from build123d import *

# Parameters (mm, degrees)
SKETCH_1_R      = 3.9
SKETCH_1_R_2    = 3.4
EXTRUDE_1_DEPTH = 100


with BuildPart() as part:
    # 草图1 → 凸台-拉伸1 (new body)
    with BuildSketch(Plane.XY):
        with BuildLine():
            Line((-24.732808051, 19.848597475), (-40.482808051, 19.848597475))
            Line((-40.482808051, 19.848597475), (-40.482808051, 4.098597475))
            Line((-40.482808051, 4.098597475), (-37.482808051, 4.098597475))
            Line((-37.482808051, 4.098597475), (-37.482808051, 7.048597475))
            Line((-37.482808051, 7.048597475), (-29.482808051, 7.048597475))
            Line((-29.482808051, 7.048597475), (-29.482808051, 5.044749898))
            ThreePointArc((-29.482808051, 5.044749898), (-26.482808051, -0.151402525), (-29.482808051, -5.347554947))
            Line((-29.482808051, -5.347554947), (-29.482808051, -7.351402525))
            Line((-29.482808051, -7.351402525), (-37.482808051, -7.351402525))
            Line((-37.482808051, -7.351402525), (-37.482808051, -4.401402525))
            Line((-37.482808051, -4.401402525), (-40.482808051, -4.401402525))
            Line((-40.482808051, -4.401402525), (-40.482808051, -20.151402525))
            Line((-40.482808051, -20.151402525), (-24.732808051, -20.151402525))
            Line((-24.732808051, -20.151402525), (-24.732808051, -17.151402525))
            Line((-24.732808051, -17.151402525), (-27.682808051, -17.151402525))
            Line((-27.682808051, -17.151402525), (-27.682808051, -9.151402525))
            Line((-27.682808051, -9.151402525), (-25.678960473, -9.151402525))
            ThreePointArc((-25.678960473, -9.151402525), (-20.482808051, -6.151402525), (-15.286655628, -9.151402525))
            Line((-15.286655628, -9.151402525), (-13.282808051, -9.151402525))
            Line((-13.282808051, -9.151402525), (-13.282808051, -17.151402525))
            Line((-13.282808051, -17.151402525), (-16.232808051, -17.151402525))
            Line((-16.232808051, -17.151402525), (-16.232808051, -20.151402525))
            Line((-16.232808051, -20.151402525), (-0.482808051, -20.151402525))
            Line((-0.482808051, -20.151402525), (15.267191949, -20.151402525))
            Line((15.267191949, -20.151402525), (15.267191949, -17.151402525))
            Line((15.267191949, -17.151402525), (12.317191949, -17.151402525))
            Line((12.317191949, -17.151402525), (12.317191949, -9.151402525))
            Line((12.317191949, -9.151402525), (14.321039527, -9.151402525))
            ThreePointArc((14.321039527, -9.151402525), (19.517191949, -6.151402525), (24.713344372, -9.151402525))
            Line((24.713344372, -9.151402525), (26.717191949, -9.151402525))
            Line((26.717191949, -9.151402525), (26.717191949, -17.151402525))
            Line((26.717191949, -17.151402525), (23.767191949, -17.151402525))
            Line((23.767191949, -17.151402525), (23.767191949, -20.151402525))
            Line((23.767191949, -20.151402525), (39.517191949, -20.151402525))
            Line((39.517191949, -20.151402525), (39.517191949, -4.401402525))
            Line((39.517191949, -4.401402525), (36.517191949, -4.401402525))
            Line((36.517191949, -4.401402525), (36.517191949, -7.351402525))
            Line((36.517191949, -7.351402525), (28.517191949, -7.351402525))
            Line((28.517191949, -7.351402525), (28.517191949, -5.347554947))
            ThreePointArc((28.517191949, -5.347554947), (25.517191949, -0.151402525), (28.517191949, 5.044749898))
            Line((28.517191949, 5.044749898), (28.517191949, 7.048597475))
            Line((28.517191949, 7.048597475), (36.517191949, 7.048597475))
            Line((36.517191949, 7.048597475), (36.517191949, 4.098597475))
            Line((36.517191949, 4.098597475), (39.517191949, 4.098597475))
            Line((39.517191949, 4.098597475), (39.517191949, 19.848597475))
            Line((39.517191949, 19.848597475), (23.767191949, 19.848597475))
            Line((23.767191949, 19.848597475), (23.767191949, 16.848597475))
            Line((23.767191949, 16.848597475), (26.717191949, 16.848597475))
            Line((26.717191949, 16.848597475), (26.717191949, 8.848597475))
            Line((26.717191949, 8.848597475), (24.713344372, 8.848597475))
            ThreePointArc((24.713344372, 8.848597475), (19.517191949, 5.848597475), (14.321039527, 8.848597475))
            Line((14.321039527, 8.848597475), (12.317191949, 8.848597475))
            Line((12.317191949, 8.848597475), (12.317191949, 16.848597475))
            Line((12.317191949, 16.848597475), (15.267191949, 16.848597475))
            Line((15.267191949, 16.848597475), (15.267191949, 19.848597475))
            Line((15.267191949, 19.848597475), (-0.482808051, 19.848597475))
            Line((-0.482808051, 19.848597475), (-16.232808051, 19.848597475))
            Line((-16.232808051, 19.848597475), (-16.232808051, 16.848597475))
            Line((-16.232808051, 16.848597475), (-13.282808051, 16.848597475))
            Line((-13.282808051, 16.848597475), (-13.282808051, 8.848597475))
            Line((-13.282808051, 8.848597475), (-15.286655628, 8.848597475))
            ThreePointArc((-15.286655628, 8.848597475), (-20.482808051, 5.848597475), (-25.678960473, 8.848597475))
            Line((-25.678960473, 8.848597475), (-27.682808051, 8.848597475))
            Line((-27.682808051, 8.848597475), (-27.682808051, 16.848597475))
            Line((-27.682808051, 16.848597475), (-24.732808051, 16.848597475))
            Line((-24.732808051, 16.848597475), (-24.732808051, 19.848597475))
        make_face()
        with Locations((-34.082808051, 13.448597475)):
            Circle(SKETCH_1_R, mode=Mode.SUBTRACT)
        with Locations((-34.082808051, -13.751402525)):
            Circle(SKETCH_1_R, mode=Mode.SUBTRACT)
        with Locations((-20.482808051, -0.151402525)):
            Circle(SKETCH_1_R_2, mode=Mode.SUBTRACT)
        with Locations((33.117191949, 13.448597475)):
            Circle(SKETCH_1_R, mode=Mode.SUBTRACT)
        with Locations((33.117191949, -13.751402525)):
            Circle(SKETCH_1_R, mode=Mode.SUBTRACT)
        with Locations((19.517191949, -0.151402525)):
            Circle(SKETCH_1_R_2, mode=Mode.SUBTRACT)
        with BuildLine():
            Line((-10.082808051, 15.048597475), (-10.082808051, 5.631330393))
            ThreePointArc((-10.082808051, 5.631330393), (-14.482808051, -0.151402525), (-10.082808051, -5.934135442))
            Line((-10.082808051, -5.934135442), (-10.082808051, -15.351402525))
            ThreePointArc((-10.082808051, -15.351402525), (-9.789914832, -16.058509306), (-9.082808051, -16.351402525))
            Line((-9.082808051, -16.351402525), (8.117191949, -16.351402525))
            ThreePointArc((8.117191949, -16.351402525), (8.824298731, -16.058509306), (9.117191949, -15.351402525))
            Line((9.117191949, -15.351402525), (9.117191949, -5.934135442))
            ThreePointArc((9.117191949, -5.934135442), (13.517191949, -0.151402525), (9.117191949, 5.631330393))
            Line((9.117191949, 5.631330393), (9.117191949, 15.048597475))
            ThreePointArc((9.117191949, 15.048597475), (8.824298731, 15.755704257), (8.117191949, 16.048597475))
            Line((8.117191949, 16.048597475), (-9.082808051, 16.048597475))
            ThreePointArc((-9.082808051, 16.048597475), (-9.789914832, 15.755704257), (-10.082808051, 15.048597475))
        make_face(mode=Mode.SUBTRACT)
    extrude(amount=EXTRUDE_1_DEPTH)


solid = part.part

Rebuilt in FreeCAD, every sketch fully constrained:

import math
import FreeCAD as App
import Part
import Sketcher

doc = App.newDocument("Part")
body = doc.addObject("PartDesign::Body", "Body")

sketch1 = body.newObject("Sketcher::SketchObject", "Sketch")
sketch1.AttachmentSupport = (doc.getObject("XY_Plane"), [""])
sketch1.MapMode = "FlatFace"
sketch1.addGeometry([
    Part.LineSegment(App.Vector(-24.7, 19.8, 0), App.Vector(-40.5, 19.8, 0)),
    Part.LineSegment(App.Vector(-40.5, 19.8, 0), App.Vector(-40.5, 4.1, 0)),
    Part.LineSegment(App.Vector(-40.5, 4.1, 0), App.Vector(-37.5, 4.1, 0)),
    Part.LineSegment(App.Vector(-37.5, 4.1, 0), App.Vector(-37.5, 7, 0)),
    Part.LineSegment(App.Vector(-37.5, 7, 0), App.Vector(-29.5, 7, 0)),
    Part.LineSegment(App.Vector(-29.5, 7, 0), App.Vector(-29.5, 5, 0)),
    Part.ArcOfCircle(Part.Circle(App.Vector(-32.5, -0.2, 0), App.Vector(0, 0, 1), 6), math.radians(-60), math.radians(60)),
    Part.LineSegment(App.Vector(-29.5, -5.3, 0), App.Vector(-29.5, -7.4, 0)),
    Part.LineSegment(App.Vector(-29.5, -7.4, 0), App.Vector(-37.5, -7.4, 0)),
    Part.LineSegment(App.Vector(-37.5, -7.4, 0), App.Vector(-37.5, -4.4, 0)),
    Part.LineSegment(App.Vector(-37.5, -4.4, 0), App.Vector(-40.5, -4.4, 0)),
    Part.LineSegment(App.Vector(-40.5, -4.4, 0), App.Vector(-40.5, -20.2, 0)),
    Part.LineSegment(App.Vector(-40.5, -20.2, 0), App.Vector(-24.7, -20.2, 0)),
    Part.LineSegment(App.Vector(-24.7, -20.2, 0), App.Vector(-24.7, -17.2, 0)),
    Part.LineSegment(App.Vector(-24.7, -17.2, 0), App.Vector(-27.7, -17.2, 0)),
    Part.LineSegment(App.Vector(-27.7, -17.2, 0), App.Vector(-27.7, -9.2, 0)),
    Part.LineSegment(App.Vector(-27.7, -9.2, 0), App.Vector(-25.7, -9.2, 0)),
    Part.ArcOfCircle(Part.Circle(App.Vector(-20.5, -12.2, 0), App.Vector(0, 0, 1), 6), math.radians(30), math.radians(150)),
    Part.LineSegment(App.Vector(-15.3, -9.2, 0), App.Vector(-13.3, -9.2, 0)),
    Part.LineSegment(App.Vector(-13.3, -9.2, 0), App.Vector(-13.3, -17.2, 0)),
    Part.LineSegment(App.Vector(-13.3, -17.2, 0), App.Vector(-16.2, -17.2, 0)),
    Part.LineSegment(App.Vector(-16.2, -17.2, 0), App.Vector(-16.2, -20.2, 0)),
    Part.LineSegment(App.Vector(-16.2, -20.2, 0), App.Vector(15.3, -20.2, 0)),
    Part.LineSegment(App.Vector(15.3, -20.2, 0), App.Vector(15.3, -17.2, 0)),
    Part.LineSegment(App.Vector(15.3, -17.2, 0), App.Vector(12.3, -17.2, 0)),
    Part.LineSegment(App.Vector(12.3, -17.2, 0), App.Vector(12.3, -9.2, 0)),
    Part.LineSegment(App.Vector(12.3, -9.2, 0), App.Vector(14.3, -9.2, 0)),
    Part.ArcOfCircle(Part.Circle(App.Vector(19.5, -12.2, 0), App.Vector(0, 0, 1), 6), math.radians(30), math.radians(150)),
    Part.LineSegment(App.Vector(24.7, -9.2, 0), App.Vector(26.7, -9.2, 0)),
    Part.LineSegment(App.Vector(26.7, -9.2, 0), App.Vector(26.7, -17.2, 0)),
    Part.LineSegment(App.Vector(26.7, -17.2, 0), App.Vector(23.8, -17.2, 0)),
    Part.LineSegment(App.Vector(23.8, -17.2, 0), App.Vector(23.8, -20.2, 0)),
    Part.LineSegment(App.Vector(23.8, -20.2, 0), App.Vector(39.5, -20.2, 0)),
    Part.LineSegment(App.Vector(39.5, -20.2, 0), App.Vector(39.5, -4.4, 0)),
    Part.LineSegment(App.Vector(39.5, -4.4, 0), App.Vector(36.5, -4.4, 0)),
    Part.LineSegment(App.Vector(36.5, -4.4, 0), App.Vector(36.5, -7.4, 0)),
    Part.LineSegment(App.Vector(36.5, -7.4, 0), App.Vector(28.5, -7.4, 0)),
    Part.LineSegment(App.Vector(28.5, -7.4, 0), App.Vector(28.5, -5.3, 0)),
    Part.ArcOfCircle(Part.Circle(App.Vector(31.5, -0.2, 0), App.Vector(0, 0, 1), 6), math.radians(120), math.radians(240)),
    Part.LineSegment(App.Vector(28.5, 5, 0), App.Vector(28.5, 7, 0)),
    Part.LineSegment(App.Vector(28.5, 7, 0), App.Vector(36.5, 7, 0)),
    Part.LineSegment(App.Vector(36.5, 7, 0), App.Vector(36.5, 4.1, 0)),
    Part.LineSegment(App.Vector(36.5, 4.1, 0), App.Vector(39.5, 4.1, 0)),
    Part.LineSegment(App.Vector(39.5, 4.1, 0), App.Vector(39.5, 19.8, 0)),
    Part.LineSegment(App.Vector(39.5, 19.8, 0), App.Vector(23.8, 19.8, 0)),
    Part.LineSegment(App.Vector(23.8, 19.8, 0), App.Vector(23.8, 16.8, 0)),
    Part.LineSegment(App.Vector(23.8, 16.8, 0), App.Vector(26.7, 16.8, 0)),
    Part.LineSegment(App.Vector(26.7, 16.8, 0), App.Vector(26.7, 8.8, 0)),
    Part.LineSegment(App.Vector(26.7, 8.8, 0), App.Vector(24.7, 8.8, 0)),
    Part.ArcOfCircle(Part.Circle(App.Vector(19.5, 11.8, 0), App.Vector(0, 0, 1), 6), math.radians(-150), math.radians(-30)),
    Part.LineSegment(App.Vector(14.3, 8.8, 0), App.Vector(12.3, 8.8, 0)),
    Part.LineSegment(App.Vector(12.3, 8.8, 0), App.Vector(12.3, 16.8, 0)),
    Part.LineSegment(App.Vector(12.3, 16.8, 0), App.Vector(15.3, 16.8, 0)),
    Part.LineSegment(App.Vector(15.3, 16.8, 0), App.Vector(15.3, 19.8, 0)),
    Part.LineSegment(App.Vector(15.3, 19.8, 0), App.Vector(-16.2, 19.8, 0)),
    Part.LineSegment(App.Vector(-16.2, 19.8, 0), App.Vector(-16.2, 16.8, 0)),
    Part.LineSegment(App.Vector(-16.2, 16.8, 0), App.Vector(-13.3, 16.8, 0)),
    Part.LineSegment(App.Vector(-13.3, 16.8, 0), App.Vector(-13.3, 8.8, 0)),
    Part.LineSegment(App.Vector(-13.3, 8.8, 0), App.Vector(-15.3, 8.8, 0)),
    Part.ArcOfCircle(Part.Circle(App.Vector(-20.5, 11.8, 0), App.Vector(0, 0, 1), 6), math.radians(-150), math.radians(-30)),
    Part.LineSegment(App.Vector(-25.7, 8.8, 0), App.Vector(-27.7, 8.8, 0)),
    Part.LineSegment(App.Vector(-27.7, 8.8, 0), App.Vector(-27.7, 16.8, 0)),
    Part.LineSegment(App.Vector(-27.7, 16.8, 0), App.Vector(-24.7, 16.8, 0)),
    Part.LineSegment(App.Vector(-24.7, 16.8, 0), App.Vector(-24.7, 19.8, 0)),
    Part.Circle(App.Vector(-34.1, -13.8, 0), App.Vector(0, 0, 1), 3.9),
    Part.Circle(App.Vector(33.1, -13.8, 0), App.Vector(0, 0, 1), 3.9),
    Part.Circle(App.Vector(-20.5, -0.2, 0), App.Vector(0, 0, 1), 3.4),
    Part.Circle(App.Vector(-34.1, 13.4, 0), App.Vector(0, 0, 1), 3.9),
    Part.LineSegment(App.Vector(-10.1, 5.6, 0), App.Vector(-10.1, 15, 0)),
    Part.ArcOfCircle(Part.Circle(App.Vector(-9.1, 15, 0), App.Vector(0, 0, 1), 1), math.radians(90), math.radians(180)),
    Part.LineSegment(App.Vector(-9.1, 16, 0), App.Vector(8.1, 16, 0)),
    Part.ArcOfCircle(Part.Circle(App.Vector(8.1, 15, 0), App.Vector(0, 0, 1), 1), math.radians(0), math.radians(90)),
    Part.LineSegment(App.Vector(9.1, 15, 0), App.Vector(9.1, 5.6, 0)),
    Part.ArcOfCircle(Part.Circle(App.Vector(7.5, -0.2, 0), App.Vector(0, 0, 1), 6), math.radians(-75), math.radians(75)),
    Part.LineSegment(App.Vector(9.1, -5.9, 0), App.Vector(9.1, -15.4, 0)),
    Part.ArcOfCircle(Part.Circle(App.Vector(8.1, -15.4, 0), App.Vector(0, 0, 1), 1), math.radians(-90), math.radians(0)),
    Part.LineSegment(App.Vector(8.1, -16.4, 0), App.Vector(-9.1, -16.4, 0)),
    Part.ArcOfCircle(Part.Circle(App.Vector(-9.1, -15.4, 0), App.Vector(0, 0, 1), 1), math.radians(-180), math.radians(-90)),
    Part.LineSegment(App.Vector(-10.1, -15.4, 0), App.Vector(-10.1, -5.9, 0)),
    Part.ArcOfCircle(Part.Circle(App.Vector(-8.5, -0.2, 0), App.Vector(0, 0, 1), 6), math.radians(105), math.radians(255)),
    Part.Circle(App.Vector(19.5, -0.2, 0), App.Vector(0, 0, 1), 3.4),
    Part.Circle(App.Vector(33.1, 13.4, 0), App.Vector(0, 0, 1), 3.9),
], False)
sketch1.addConstraint([
    Sketcher.Constraint("Coincident", 0, 2, 1, 1),
    Sketcher.Constraint("Coincident", 1, 2, 2, 1),
    Sketcher.Constraint("Coincident", 2, 2, 3, 1),
    Sketcher.Constraint("Coincident", 3, 2, 4, 1),
    Sketcher.Constraint("Coincident", 4, 2, 5, 1),
    Sketcher.Constraint("Coincident", 5, 2, 6, 2),
    Sketcher.Constraint("Coincident", 6, 1, 7, 1),
    Sketcher.Constraint("Coincident", 7, 2, 8, 1),
    Sketcher.Constraint("Coincident", 8, 2, 9, 1),
    Sketcher.Constraint("Coincident", 9, 2, 10, 1),
    Sketcher.Constraint("Coincident", 10, 2, 11, 1),
    Sketcher.Constraint("Coincident", 11, 2, 12, 1),
    Sketcher.Constraint("Coincident", 12, 2, 13, 1),
    Sketcher.Constraint("Coincident", 13, 2, 14, 1),
    Sketcher.Constraint("Coincident", 14, 2, 15, 1),
    Sketcher.Constraint("Coincident", 15, 2, 16, 1),
    Sketcher.Constraint("Coincident", 16, 2, 17, 2),
    Sketcher.Constraint("Coincident", 17, 1, 18, 1),
    Sketcher.Constraint("Coincident", 18, 2, 19, 1),
    Sketcher.Constraint("Coincident", 19, 2, 20, 1),
    Sketcher.Constraint("Coincident", 20, 2, 21, 1),
    Sketcher.Constraint("Coincident", 21, 2, 22, 1),
    Sketcher.Constraint("Coincident", 22, 2, 23, 1),
    Sketcher.Constraint("Coincident", 23, 2, 24, 1),
    Sketcher.Constraint("Coincident", 24, 2, 25, 1),
    Sketcher.Constraint("Coincident", 25, 2, 26, 1),
    Sketcher.Constraint("Coincident", 26, 2, 27, 2),
    Sketcher.Constraint("Coincident", 27, 1, 28, 1),
    Sketcher.Constraint("Coincident", 28, 2, 29, 1),
    Sketcher.Constraint("Coincident", 29, 2, 30, 1),
    Sketcher.Constraint("Coincident", 30, 2, 31, 1),
    Sketcher.Constraint("Coincident", 31, 2, 32, 1),
    Sketcher.Constraint("Coincident", 32, 2, 33, 1),
    Sketcher.Constraint("Coincident", 33, 2, 34, 1),
    Sketcher.Constraint("Coincident", 34, 2, 35, 1),
    Sketcher.Constraint("Coincident", 35, 2, 36, 1),
    Sketcher.Constraint("Coincident", 36, 2, 37, 1),
    Sketcher.Constraint("Coincident", 37, 2, 38, 2),
    Sketcher.Constraint("Coincident", 38, 1, 39, 1),
    Sketcher.Constraint("Coincident", 39, 2, 40, 1),
    Sketcher.Constraint("Coincident", 40, 2, 41, 1),
    Sketcher.Constraint("Coincident", 41, 2, 42, 1),
    Sketcher.Constraint("Coincident", 42, 2, 43, 1),
    Sketcher.Constraint("Coincident", 43, 2, 44, 1),
    Sketcher.Constraint("Coincident", 44, 2, 45, 1),
    Sketcher.Constraint("Coincident", 45, 2, 46, 1),
    Sketcher.Constraint("Coincident", 46, 2, 47, 1),
    Sketcher.Constraint("Coincident", 47, 2, 48, 1),
    Sketcher.Constraint("Coincident", 48, 2, 49, 2),
    Sketcher.Constraint("Coincident", 49, 1, 50, 1),
    Sketcher.Constraint("Coincident", 50, 2, 51, 1),
    Sketcher.Constraint("Coincident", 51, 2, 52, 1),
    Sketcher.Constraint("Coincident", 52, 2, 53, 1),
    Sketcher.Constraint("Coincident", 53, 2, 54, 1),
    Sketcher.Constraint("Coincident", 54, 2, 55, 1),
    Sketcher.Constraint("Coincident", 55, 2, 56, 1),
    Sketcher.Constraint("Coincident", 56, 2, 57, 1),
    Sketcher.Constraint("Coincident", 57, 2, 58, 1),
    Sketcher.Constraint("Coincident", 58, 2, 59, 2),
    Sketcher.Constraint("Coincident", 59, 1, 60, 1),
    Sketcher.Constraint("Coincident", 60, 2, 61, 1),
    Sketcher.Constraint("Coincident", 61, 2, 62, 1),
    Sketcher.Constraint("Coincident", 62, 2, 63, 1),
    Sketcher.Constraint("Coincident", 63, 2, 0, 1),
    Sketcher.Constraint("Tangent", 68, 2, 69, 2),
    Sketcher.Constraint("Tangent", 69, 1, 70, 1),
    Sketcher.Constraint("Tangent", 70, 2, 71, 2),
    Sketcher.Constraint("Tangent", 71, 1, 72, 1),
    Sketcher.Constraint("Coincident", 72, 2, 73, 2),
    Sketcher.Constraint("Coincident", 73, 1, 74, 1),
    Sketcher.Constraint("Tangent", 74, 2, 75, 2),
    Sketcher.Constraint("Tangent", 75, 1, 76, 1),
    Sketcher.Constraint("Tangent", 76, 2, 77, 2),
    Sketcher.Constraint("Tangent", 77, 1, 78, 1),
    Sketcher.Constraint("Coincident", 78, 2, 79, 2),
    Sketcher.Constraint("Coincident", 79, 1, 68, 1),
    Sketcher.Constraint("Horizontal", 0),
    Sketcher.Constraint("Vertical", 1),
    Sketcher.Constraint("Horizontal", 2),
    Sketcher.Constraint("Vertical", 3),
    Sketcher.Constraint("Horizontal", 4),
    Sketcher.Constraint("Vertical", 5),
    Sketcher.Constraint("Vertical", 7),
    Sketcher.Constraint("Horizontal", 8),
    Sketcher.Constraint("Vertical", 9),
    Sketcher.Constraint("Horizontal", 10),
    Sketcher.Constraint("Vertical", 11),
    Sketcher.Constraint("Horizontal", 12),
    Sketcher.Constraint("Vertical", 13),
    Sketcher.Constraint("Horizontal", 14),
    Sketcher.Constraint("Vertical", 15),
    Sketcher.Constraint("Horizontal", 16),
    Sketcher.Constraint("Horizontal", 18),
    Sketcher.Constraint("Vertical", 19),
    Sketcher.Constraint("Horizontal", 20),
    Sketcher.Constraint("Vertical", 21),
    Sketcher.Constraint("Horizontal", 22),
    Sketcher.Constraint("Vertical", 23),
    Sketcher.Constraint("Horizontal", 24),
    Sketcher.Constraint("Vertical", 25),
    Sketcher.Constraint("Horizontal", 26),
    Sketcher.Constraint("Horizontal", 28),
    Sketcher.Constraint("Vertical", 29),
    Sketcher.Constraint("Horizontal", 30),
    Sketcher.Constraint("Vertical", 31),
    Sketcher.Constraint("Horizontal", 32),
    Sketcher.Constraint("Vertical", 33),
    Sketcher.Constraint("Horizontal", 34),
    Sketcher.Constraint("Vertical", 35),
    Sketcher.Constraint("Horizontal", 36),
    Sketcher.Constraint("Vertical", 37),
    Sketcher.Constraint("Vertical", 39),
    Sketcher.Constraint("Horizontal", 40),
    Sketcher.Constraint("Vertical", 41),
    Sketcher.Constraint("Horizontal", 42),
    Sketcher.Constraint("Vertical", 43),
    Sketcher.Constraint("Horizontal", 44),
    Sketcher.Constraint("Vertical", 45),
    Sketcher.Constraint("Horizontal", 46),
    Sketcher.Constraint("Vertical", 47),
    Sketcher.Constraint("Horizontal", 48),
    Sketcher.Constraint("Horizontal", 50),
    Sketcher.Constraint("Vertical", 51),
    Sketcher.Constraint("Horizontal", 52),
    Sketcher.Constraint("Vertical", 53),
    Sketcher.Constraint("Horizontal", 54),
    Sketcher.Constraint("Vertical", 55),
    Sketcher.Constraint("Horizontal", 56),
    Sketcher.Constraint("Vertical", 57),
    Sketcher.Constraint("Horizontal", 58),
    Sketcher.Constraint("Horizontal", 60),
    Sketcher.Constraint("Vertical", 61),
    Sketcher.Constraint("Horizontal", 62),
    Sketcher.Constraint("Vertical", 63),
    Sketcher.Constraint("Vertical", 68),
    Sketcher.Constraint("Horizontal", 70),
    Sketcher.Constraint("Vertical", 72),
    Sketcher.Constraint("Vertical", 74),
    Sketcher.Constraint("Horizontal", 76),
    Sketcher.Constraint("Vertical", 78),
    Sketcher.Constraint("Equal", 6, 17),
    Sketcher.Constraint("Equal", 17, 27),
    Sketcher.Constraint("Equal", 27, 38),
    Sketcher.Constraint("Equal", 38, 49),
    Sketcher.Constraint("Equal", 49, 59),
    Sketcher.Constraint("Equal", 64, 65),
    Sketcher.Constraint("Equal", 65, 67),
    Sketcher.Constraint("Equal", 69, 71),
    Sketcher.Constraint("Equal", 59, 73),
    Sketcher.Constraint("Equal", 71, 75),
    Sketcher.Constraint("Equal", 75, 77),
    Sketcher.Constraint("Equal", 73, 79),
    Sketcher.Constraint("Equal", 66, 80),
    Sketcher.Constraint("Equal", 67, 81),
    Sketcher.Constraint("Horizontal", 17, 3, 27, 3),
    Sketcher.Constraint("Horizontal", 6, 3, 38, 3),
    Sketcher.Constraint("Horizontal", 49, 3, 59, 3),
    Sketcher.Constraint("Horizontal", 64, 3, 65, 3),
    Sketcher.Constraint("Horizontal", 38, 3, 66, 3),
    Sketcher.Constraint("Horizontal", 66, 3, 73, 3),
    Sketcher.Constraint("Horizontal", 73, 3, 79, 3),
    Sketcher.Constraint("Horizontal", 79, 3, 80, 3),
    Sketcher.Constraint("Horizontal", 67, 3, 81, 3),
    Sketcher.Constraint("Horizontal", 16, 2, 17, 1),
    Sketcher.Constraint("Horizontal", 14, 2, 19, 2),
    Sketcher.Constraint("Horizontal", 12, 2, 21, 2),
    Sketcher.Constraint("Horizontal", 20, 2, 23, 2),
    Sketcher.Constraint("Horizontal", 18, 2, 25, 2),
    Sketcher.Constraint("Horizontal", 26, 2, 27, 1),
    Sketcher.Constraint("Horizontal", 24, 2, 29, 2),
    Sketcher.Constraint("Horizontal", 22, 2, 31, 2),
    Sketcher.Constraint("Horizontal", 10, 2, 33, 2),
    Sketcher.Constraint("Horizontal", 8, 2, 35, 2),
    Sketcher.Constraint("Horizontal", 6, 1, 37, 2),
    Sketcher.Constraint("Horizontal", 5, 2, 38, 1),
    Sketcher.Constraint("Horizontal", 4, 2, 39, 2),
    Sketcher.Constraint("Horizontal", 2, 2, 41, 2),
    Sketcher.Constraint("Horizontal", 0, 2, 43, 2),
    Sketcher.Constraint("Horizontal", 48, 2, 49, 1),
    Sketcher.Constraint("Horizontal", 46, 2, 51, 2),
    Sketcher.Constraint("Horizontal", 44, 2, 53, 2),
    Sketcher.Constraint("Horizontal", 52, 2, 55, 2),
    Sketcher.Constraint("Horizontal", 50, 2, 57, 2),
    Sketcher.Constraint("Horizontal", 58, 2, 59, 1),
    Sketcher.Constraint("Horizontal", 56, 2, 61, 2),
    Sketcher.Constraint("Horizontal", 73, 1, 78, 2),
    Sketcher.Constraint("Horizontal", 72, 2, 79, 1),
    Sketcher.Constraint("Vertical", 27, 3, 49, 3),
    Sketcher.Constraint("Vertical", 17, 3, 59, 3),
    Sketcher.Constraint("Vertical", 59, 3, 66, 3),
    Sketcher.Constraint("Vertical", 64, 3, 67, 3),
    Sketcher.Constraint("Vertical", 71, 3, 75, 3),
    Sketcher.Constraint("Vertical", 49, 3, 80, 3),
    Sketcher.Constraint("Vertical", 65, 3, 81, 3),
    Sketcher.Constraint("Vertical", 5, 2, 6, 1),
    Sketcher.Constraint("Vertical", 3, 2, 8, 2),
    Sketcher.Constraint("Vertical", 1, 2, 10, 2),
    Sketcher.Constraint("Vertical", 35, 2, 40, 2),
    Sketcher.Constraint("Vertical", 33, 2, 42, 2),
    Sketcher.Constraint("Vertical", 31, 2, 44, 2),
    Sketcher.Constraint("Vertical", 29, 2, 46, 2),
    Sketcher.Constraint("Vertical", 27, 1, 48, 2),
    Sketcher.Constraint("Vertical", 25, 2, 50, 2),
    Sketcher.Constraint("Vertical", 23, 2, 52, 2),
    Sketcher.Constraint("Vertical", 21, 2, 54, 2),
    Sketcher.Constraint("Vertical", 19, 2, 56, 2),
    Sketcher.Constraint("Vertical", 15, 2, 60, 2),
    Sketcher.Constraint("Vertical", 13, 2, 62, 2),
    Sketcher.Constraint("Equal", 16, 18),
    Sketcher.Constraint("Equal", 14, 20),
    Sketcher.Constraint("Equal", 20, 24),
    Sketcher.Constraint("Equal", 18, 26),
    Sketcher.Constraint("Equal", 26, 28),
    Sketcher.Constraint("Equal", 24, 30),
    Sketcher.Constraint("Equal", 12, 32),
    Sketcher.Constraint("Equal", 10, 34),
    Sketcher.Constraint("Equal", 8, 36),
    Sketcher.Constraint("Equal", 44, 1),
    Sketcher.Constraint("Equal", 62, 3),
    Sketcher.Constraint("Equal", 60, 5),
    Sketcher.Constraint("Equal", 5, 7),
    Sketcher.Constraint("Equal", 3, 9),
    Sketcher.Constraint("Equal", 1, 11),
    Sketcher.Constraint("Equal", 42, 13),
    Sketcher.Constraint("Equal", 40, 15),
    Sketcher.Constraint("Equal", 31, 45),
    Sketcher.Constraint("Equal", 29, 47),
    Sketcher.Constraint("Equal", 72, 74),
    Sketcher.Constraint("Radius", 6, 6.0),
    Sketcher.Constraint("Radius", 69, 1.0),
    Sketcher.Constraint("Diameter", 64, 7.8),
    Sketcher.Constraint("Diameter", 66, 6.8),
    Sketcher.Constraint("DistanceX", 2, 1, 2, 2, 3.0),
    Sketcher.Constraint("DistanceX", 4, 1, 4, 2, 8.0),
    Sketcher.Constraint("DistanceX", 22, 1, 22, 2, 31.5),
    Sketcher.Constraint("DistanceX", 70, 1, 70, 2, 17.2),
    Sketcher.Constraint("DistanceX", 0, 2, 0, 1, 15.75),
    Sketcher.Constraint("DistanceX", 14, 2, 14, 1, 2.95),
    Sketcher.Constraint("DistanceX", 16, 1, 16, 2, 2.003848),
    Sketcher.Constraint("DistanceY", 68, 1, 68, 2, 9.417267),
    Sketcher.Constraint("DistanceX", 6, 3, -1, 1, 32.482808),
    Sketcher.Constraint("DistanceX", 17, 3, -1, 1, 20.482808),
    Sketcher.Constraint("DistanceX", -1, 1, 27, 3, 19.517192),
    Sketcher.Constraint("DistanceX", 64, 3, -1, 1, 34.082808),
    Sketcher.Constraint("DistanceX", -1, 1, 65, 3, 33.117192),
    Sketcher.Constraint("DistanceX", 69, 3, -1, 1, 9.082808),
    Sketcher.Constraint("DistanceX", -1, 1, 73, 3, 7.517192),
    Sketcher.Constraint("DistanceY", -1, 1, 5, 2, 5.04475),
    Sketcher.Constraint("DistanceY", 64, 3, -1, 1, 13.751403),
    Sketcher.Constraint("DistanceY", -1, 1, 67, 3, 13.448597),
])
pad1 = body.newObject("PartDesign::Pad", "Pad")
pad1.Profile = sketch1
pad1.Length = 100

doc.recompute()
